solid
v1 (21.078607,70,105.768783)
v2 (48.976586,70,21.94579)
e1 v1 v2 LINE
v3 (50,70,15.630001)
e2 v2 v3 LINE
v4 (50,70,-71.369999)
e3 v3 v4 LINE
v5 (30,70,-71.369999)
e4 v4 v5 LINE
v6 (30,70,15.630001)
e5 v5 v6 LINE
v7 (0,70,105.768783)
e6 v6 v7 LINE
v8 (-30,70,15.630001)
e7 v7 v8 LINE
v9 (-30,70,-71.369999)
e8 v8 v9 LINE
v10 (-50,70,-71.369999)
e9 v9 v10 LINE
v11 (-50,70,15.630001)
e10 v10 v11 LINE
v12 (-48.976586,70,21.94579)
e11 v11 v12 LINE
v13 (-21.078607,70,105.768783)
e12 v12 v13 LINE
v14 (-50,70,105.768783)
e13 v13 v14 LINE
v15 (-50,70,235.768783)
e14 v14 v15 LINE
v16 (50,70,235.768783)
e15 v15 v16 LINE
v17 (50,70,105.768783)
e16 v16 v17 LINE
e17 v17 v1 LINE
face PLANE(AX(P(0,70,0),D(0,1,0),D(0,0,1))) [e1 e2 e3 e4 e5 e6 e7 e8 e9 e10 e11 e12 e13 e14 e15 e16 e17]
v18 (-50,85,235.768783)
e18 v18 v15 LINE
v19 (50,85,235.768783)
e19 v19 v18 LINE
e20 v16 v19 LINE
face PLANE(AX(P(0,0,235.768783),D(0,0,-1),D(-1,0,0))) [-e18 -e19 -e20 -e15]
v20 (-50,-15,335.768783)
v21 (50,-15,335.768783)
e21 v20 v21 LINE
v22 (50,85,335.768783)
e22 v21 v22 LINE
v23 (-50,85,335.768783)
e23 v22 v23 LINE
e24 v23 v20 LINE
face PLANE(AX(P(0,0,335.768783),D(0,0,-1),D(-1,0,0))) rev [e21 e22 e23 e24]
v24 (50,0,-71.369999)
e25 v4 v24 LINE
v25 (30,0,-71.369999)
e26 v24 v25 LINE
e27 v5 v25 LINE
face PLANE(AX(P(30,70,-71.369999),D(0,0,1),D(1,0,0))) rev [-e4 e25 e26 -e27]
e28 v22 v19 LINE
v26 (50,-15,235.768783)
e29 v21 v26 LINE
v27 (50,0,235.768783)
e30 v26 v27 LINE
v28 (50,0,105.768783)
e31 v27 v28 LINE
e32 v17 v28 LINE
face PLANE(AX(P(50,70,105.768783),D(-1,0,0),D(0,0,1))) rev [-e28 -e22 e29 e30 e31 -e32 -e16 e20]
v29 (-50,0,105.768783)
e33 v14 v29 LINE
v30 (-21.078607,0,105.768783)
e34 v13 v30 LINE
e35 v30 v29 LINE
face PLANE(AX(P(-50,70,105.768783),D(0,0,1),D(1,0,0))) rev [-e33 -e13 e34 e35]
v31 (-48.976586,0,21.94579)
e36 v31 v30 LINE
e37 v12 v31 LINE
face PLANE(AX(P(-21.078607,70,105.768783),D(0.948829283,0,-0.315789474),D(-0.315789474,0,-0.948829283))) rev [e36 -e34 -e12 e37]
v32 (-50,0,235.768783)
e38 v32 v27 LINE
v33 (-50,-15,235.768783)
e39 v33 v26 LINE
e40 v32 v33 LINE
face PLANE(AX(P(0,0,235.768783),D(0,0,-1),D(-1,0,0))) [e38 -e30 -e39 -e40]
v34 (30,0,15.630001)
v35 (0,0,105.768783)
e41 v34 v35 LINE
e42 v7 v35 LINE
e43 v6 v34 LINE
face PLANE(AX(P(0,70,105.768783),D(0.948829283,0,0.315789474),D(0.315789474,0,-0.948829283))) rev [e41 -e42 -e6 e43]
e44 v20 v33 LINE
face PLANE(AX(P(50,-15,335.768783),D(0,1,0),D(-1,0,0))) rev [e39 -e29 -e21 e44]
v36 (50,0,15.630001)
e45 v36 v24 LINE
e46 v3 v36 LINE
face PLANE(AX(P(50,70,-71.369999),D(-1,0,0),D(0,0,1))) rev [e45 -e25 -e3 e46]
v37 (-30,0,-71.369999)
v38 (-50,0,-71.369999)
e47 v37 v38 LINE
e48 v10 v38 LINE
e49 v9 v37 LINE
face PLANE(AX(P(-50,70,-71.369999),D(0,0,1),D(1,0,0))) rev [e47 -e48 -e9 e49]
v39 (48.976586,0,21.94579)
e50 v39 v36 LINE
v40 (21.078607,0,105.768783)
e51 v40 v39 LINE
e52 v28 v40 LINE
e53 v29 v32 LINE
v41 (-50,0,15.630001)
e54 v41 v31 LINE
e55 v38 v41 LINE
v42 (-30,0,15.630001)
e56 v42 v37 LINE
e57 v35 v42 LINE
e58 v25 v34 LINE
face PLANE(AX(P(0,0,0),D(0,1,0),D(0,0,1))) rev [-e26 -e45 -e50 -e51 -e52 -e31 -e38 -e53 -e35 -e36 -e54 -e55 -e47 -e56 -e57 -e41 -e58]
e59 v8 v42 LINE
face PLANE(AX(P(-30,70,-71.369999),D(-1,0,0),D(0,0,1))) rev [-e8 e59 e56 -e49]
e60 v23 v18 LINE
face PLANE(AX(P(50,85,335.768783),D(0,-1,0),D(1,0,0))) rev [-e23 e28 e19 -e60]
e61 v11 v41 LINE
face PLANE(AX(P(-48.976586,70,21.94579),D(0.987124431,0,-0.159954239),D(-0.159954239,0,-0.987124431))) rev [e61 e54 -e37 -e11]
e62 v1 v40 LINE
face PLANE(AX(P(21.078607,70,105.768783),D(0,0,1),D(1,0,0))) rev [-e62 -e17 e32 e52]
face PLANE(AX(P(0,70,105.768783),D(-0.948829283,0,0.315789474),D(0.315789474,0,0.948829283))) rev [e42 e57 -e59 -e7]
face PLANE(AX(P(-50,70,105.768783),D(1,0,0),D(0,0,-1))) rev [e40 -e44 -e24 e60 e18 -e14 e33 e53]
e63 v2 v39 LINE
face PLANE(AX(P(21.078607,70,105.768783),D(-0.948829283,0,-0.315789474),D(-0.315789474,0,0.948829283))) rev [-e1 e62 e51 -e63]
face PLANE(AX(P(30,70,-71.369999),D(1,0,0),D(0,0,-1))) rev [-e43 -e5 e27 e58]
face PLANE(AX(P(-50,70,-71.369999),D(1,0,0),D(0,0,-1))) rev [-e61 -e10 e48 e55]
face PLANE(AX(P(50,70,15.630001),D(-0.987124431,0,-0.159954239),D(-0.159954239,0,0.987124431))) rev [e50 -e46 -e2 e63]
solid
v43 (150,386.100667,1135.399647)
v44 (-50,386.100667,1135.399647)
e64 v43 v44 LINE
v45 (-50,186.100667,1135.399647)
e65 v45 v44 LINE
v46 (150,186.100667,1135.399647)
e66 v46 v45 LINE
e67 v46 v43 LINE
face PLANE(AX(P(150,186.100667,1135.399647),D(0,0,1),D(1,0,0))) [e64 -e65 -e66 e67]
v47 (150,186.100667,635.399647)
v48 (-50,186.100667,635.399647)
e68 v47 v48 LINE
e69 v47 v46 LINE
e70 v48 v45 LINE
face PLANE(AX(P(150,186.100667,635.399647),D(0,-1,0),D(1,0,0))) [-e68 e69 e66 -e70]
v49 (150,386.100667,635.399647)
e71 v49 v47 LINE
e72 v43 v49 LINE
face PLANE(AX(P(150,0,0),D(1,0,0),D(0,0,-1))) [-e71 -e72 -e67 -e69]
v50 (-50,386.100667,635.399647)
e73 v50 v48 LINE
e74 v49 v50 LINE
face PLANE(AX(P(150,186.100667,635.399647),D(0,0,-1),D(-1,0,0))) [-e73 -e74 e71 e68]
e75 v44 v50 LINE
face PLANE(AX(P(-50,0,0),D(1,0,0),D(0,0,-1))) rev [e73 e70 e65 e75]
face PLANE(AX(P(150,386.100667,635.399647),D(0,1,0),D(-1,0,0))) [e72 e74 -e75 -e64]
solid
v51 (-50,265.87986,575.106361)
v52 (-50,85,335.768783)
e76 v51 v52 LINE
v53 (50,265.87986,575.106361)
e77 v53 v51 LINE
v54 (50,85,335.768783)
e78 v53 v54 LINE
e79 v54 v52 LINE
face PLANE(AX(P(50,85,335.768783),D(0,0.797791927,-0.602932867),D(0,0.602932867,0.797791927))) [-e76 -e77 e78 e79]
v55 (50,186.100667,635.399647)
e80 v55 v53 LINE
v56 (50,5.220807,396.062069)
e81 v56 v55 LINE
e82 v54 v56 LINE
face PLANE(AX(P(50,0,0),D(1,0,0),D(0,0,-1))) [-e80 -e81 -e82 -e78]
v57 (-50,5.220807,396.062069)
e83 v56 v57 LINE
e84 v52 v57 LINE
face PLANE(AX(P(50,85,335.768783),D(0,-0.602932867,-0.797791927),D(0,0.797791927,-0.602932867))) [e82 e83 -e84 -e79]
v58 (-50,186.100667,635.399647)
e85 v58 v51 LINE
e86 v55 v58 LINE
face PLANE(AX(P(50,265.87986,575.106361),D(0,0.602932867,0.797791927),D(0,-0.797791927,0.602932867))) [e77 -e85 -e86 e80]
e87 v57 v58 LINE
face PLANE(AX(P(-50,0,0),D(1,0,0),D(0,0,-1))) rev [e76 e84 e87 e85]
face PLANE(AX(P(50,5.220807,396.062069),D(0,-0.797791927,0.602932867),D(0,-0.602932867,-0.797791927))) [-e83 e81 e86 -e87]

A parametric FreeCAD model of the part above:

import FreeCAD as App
import Part
import Sketcher
from FreeCAD import Vector
Q = App.Units.Quantity

doc = App.newDocument("Part")
body = doc.addObject("PartDesign::Body", "Body")

# Sketch on XZ plane
sketch1 = doc.addObject("Sketcher::SketchObject", "Sketch")
body.addObject(sketch1)
sketch1.AttachmentSupport = (doc.XZ_Plane, [""])
sketch1.MapMode = "FlatFace"
sketch1.addGeometry([
    Part.LineSegment(Vector(0, 106, 0), Vector(-30, 16, 0)),  # 0
    Part.LineSegment(Vector(-30, 16, 0), Vector(-30, -71, 0)),  # 1
    Part.LineSegment(Vector(-30, -71, 0), Vector(-50, -71, 0)),  # 2
    Part.LineSegment(Vector(-50, -71, 0), Vector(-50, 16, 0)),  # 3
    Part.LineSegment(Vector(-50, 16, 0), Vector(-49, 22, 0)),  # 4
    Part.LineSegment(Vector(-49, 22, 0), Vector(-21, 106, 0)),  # 5
    Part.LineSegment(Vector(-21, 106, 0), Vector(-50, 106, 0)),  # 6
    Part.LineSegment(Vector(-50, 106, 0), Vector(-50, 236, 0)),  # 7
    Part.LineSegment(Vector(-50, 236, 0), Vector(50, 236, 0)),  # 8
    Part.LineSegment(Vector(50, 236, 0), Vector(50, 106, 0)),  # 9
    Part.LineSegment(Vector(50, 106, 0), Vector(21, 106, 0)),  # 10
    Part.LineSegment(Vector(21, 106, 0), Vector(49, 22, 0)),  # 11
    Part.LineSegment(Vector(49, 22, 0), Vector(50, 16, 0)),  # 12
    Part.LineSegment(Vector(50, 16, 0), Vector(50, -71, 0)),  # 13
    Part.LineSegment(Vector(50, -71, 0), Vector(30, -71, 0)),  # 14
    Part.LineSegment(Vector(30, -71, 0), Vector(30, 16, 0)),  # 15
    Part.LineSegment(Vector(30, 16, 0), Vector(0, 106, 0)),  # 16
], False)
sketch1.addConstraint([
    Sketcher.Constraint("Coincident", 0, 2, 1, 1),
    Sketcher.Constraint("Coincident", 1, 2, 2, 1),
    Sketcher.Constraint("Coincident", 2, 2, 3, 1),
    Sketcher.Constraint("Coincident", 3, 2, 4, 1),
    Sketcher.Constraint("Coincident", 4, 2, 5, 1),
    Sketcher.Constraint("Coincident", 5, 2, 6, 1),
    Sketcher.Constraint("Coincident", 6, 2, 7, 1),
    Sketcher.Constraint("Coincident", 7, 2, 8, 1),
    Sketcher.Constraint("Coincident", 8, 2, 9, 1),
    Sketcher.Constraint("Coincident", 9, 2, 10, 1),
    Sketcher.Constraint("Coincident", 10, 2, 11, 1),
    Sketcher.Constraint("Coincident", 11, 2, 12, 1),
    Sketcher.Constraint("Coincident", 12, 2, 13, 1),
    Sketcher.Constraint("Coincident", 13, 2, 14, 1),
    Sketcher.Constraint("Coincident", 14, 2, 15, 1),
    Sketcher.Constraint("Coincident", 15, 2, 16, 1),
    Sketcher.Constraint("Coincident", 16, 2, 0, 1),
    Sketcher.Constraint("Vertical", 1),
    Sketcher.Constraint("Horizontal", 2),
    Sketcher.Constraint("Vertical", 3),
    Sketcher.Constraint("Horizontal", 6),
    Sketcher.Constraint("Vertical", 7),
    Sketcher.Constraint("Horizontal", 8),
    Sketcher.Constraint("Vertical", 9),
    Sketcher.Constraint("Horizontal", 10),
    Sketcher.Constraint("Vertical", 13),
    Sketcher.Constraint("Horizontal", 14),
    Sketcher.Constraint("Vertical", 15),
    Sketcher.Constraint("Symmetric", 6, 2, 9, 2, -2),
    Sketcher.Constraint("Symmetric", 4, 2, 11, 2, -2),
    Sketcher.Constraint("Symmetric", 3, 2, 12, 2, -2),
    Sketcher.Constraint("Symmetric", 1, 2, 14, 2, -2),
    Sketcher.Constraint("PointOnObject", 16, 2, -2),
    Sketcher.Constraint("Parallel", 0, 5),
    Sketcher.Constraint("Parallel", 11, 16),
    Sketcher.Constraint("Horizontal", 0, 2, 3, 2),
    Sketcher.Constraint("Horizontal", 12, 2, 15, 2),
    Sketcher.Constraint("Horizontal", 10, 2, 16, 2),
    Sketcher.Constraint("Vertical", 3, 2, 6, 2),
    Sketcher.Constraint("DistanceX", 2, 2, 2, 1, Q("20 mm")),
    Sketcher.Constraint("DistanceX", 8, 1, 8, 2, Q("100 mm")),
    Sketcher.Constraint("DistanceY", 1, 2, 1, 1, Q("87 mm")),
    Sketcher.Constraint("DistanceY", 7, 1, 7, 2, Q("130 mm")),
    Sketcher.Constraint("Distance", 0, Q("95 mm")),
    Sketcher.Constraint("DistanceY", -1, 1, 0, 2, Q("15.630001 mm")),
    Sketcher.Constraint("Distance", 4, Q("6.39817 mm")),
    Sketcher.Constraint("DistanceX", 6, 2, 6, 1, Q("28.921393 mm")),
])
pad1 = doc.addObject("PartDesign::Pad", "Pad")
body.addObject(pad1)
pad1.Profile = sketch1
pad1.Length = 70
pad1.Reversed = True

# Sketch on XY plane
sketch2 = doc.addObject("Sketcher::SketchObject", "Sketch001")
body.addObject(sketch2)
sketch2.AttachmentSupport = (doc.XY_Plane, [""])
sketch2.MapMode = "FlatFace"
sketch2.AttachmentOffset = App.Placement(Vector(0, 0, 235.768783), App.Rotation())
sketch2.addGeometry([
    Part.LineSegment(Vector(-50, 85, 0), Vector(-50, -15, 0)),
    Part.LineSegment(Vector(-50, -15, 0), Vector(50, -15, 0)),
    Part.LineSegment(Vector(50, -15, 0), Vector(50, 85, 0)),
    Part.LineSegment(Vector(50, 85, 0), Vector(-50, 85, 0)),
], False)
sketch2.addConstraint([
    Sketcher.Constraint("Coincident", 0, 2, 1, 1),
    Sketcher.Constraint("Coincident", 1, 2, 2, 1),
    Sketcher.Constraint("Coincident", 2, 2, 3, 1),
    Sketcher.Constraint("Coincident", 3, 2, 0, 1),
    Sketcher.Constraint("Vertical", 0),
    Sketcher.Constraint("Horizontal", 1),
    Sketcher.Constraint("Vertical", 2),
    Sketcher.Constraint("Horizontal", 3),
    Sketcher.Constraint("Equal", 3, 0),
    Sketcher.Constraint("DistanceX", 1, 1, 1, 2, Q("100 mm")),
    Sketcher.Constraint("DistanceX", 0, 2, -1, 1, Q("50 mm")),
    Sketcher.Constraint("DistanceY", 0, 2, -1, 1, Q("15 mm")),
])
pad2 = doc.addObject("PartDesign::Pad", "Pad001")
body.addObject(pad2)
pad2.Profile = sketch2
pad2.Length = 100
body2 = doc.addObject("PartDesign::Body", "Body001")

# Sketch on YZ plane
sketch3 = doc.addObject("Sketcher::SketchObject", "Sketch002")
body2.addObject(sketch3)
sketch3.AttachmentSupport = (doc.getObject("YZ_Plane001"), [""])
sketch3.MapMode = "FlatFace"
sketch3.AttachmentOffset = App.Placement(Vector(0, 0, -50), App.Rotation())
sketch3.addGeometry([
    Part.LineSegment(Vector(85, 336, 0), Vector(5, 396, 0)),
    Part.LineSegment(Vector(5, 396, 0), Vector(186, 635, 0)),
    Part.LineSegment(Vector(186, 635, 0), Vector(266, 575, 0)),
    Part.LineSegment(Vector(266, 575, 0), Vector(85, 336, 0)),
], False)
sketch3.addConstraint([
    Sketcher.Constraint("Coincident", 0, 2, 1, 1),
    Sketcher.Constraint("Coincident", 1, 2, 2, 1),
    Sketcher.Constraint("Coincident", 2, 2, 3, 1),
    Sketcher.Constraint("Coincident", 3, 2, 0, 1),
    Sketcher.Constraint("Perpendicular", 0, 1),
    Sketcher.Constraint("Perpendicular", 1, 2),
    Sketcher.Constraint("Perpendicular", 2, 3),
    Sketcher.Constraint("Distance", 0, Q("100 mm")),
    Sketcher.Constraint("Distance", 1, Q("300 mm")),
    Sketcher.Constraint("DistanceX", -1, 1, 3, 2, Q("85 mm")),
    Sketcher.Constraint("DistanceY", -1, 1, 0, 2, Q("396.062069 mm")),
    Sketcher.Constraint("DistanceX", -1, 1, 2, 2, Q("265.87986 mm")),
])
pad3 = doc.addObject("PartDesign::Pad", "Pad002")
body2.addObject(pad3)
pad3.Profile = sketch3
pad3.Length = 100
body3 = doc.addObject("PartDesign::Body", "Body002")

# Sketch on YZ plane
sketch4 = doc.addObject("Sketcher::SketchObject", "Sketch003")
body3.addObject(sketch4)
sketch4.AttachmentSupport = (doc.getObject("YZ_Plane002"), [""])
sketch4.MapMode = "FlatFace"
sketch4.AttachmentOffset = App.Placement(Vector(0, 0, -50), App.Rotation())
sketch4.addGeometry([
    Part.LineSegment(Vector(386, 635, 0), Vector(186, 635, 0)),
    Part.LineSegment(Vector(186, 635, 0), Vector(186, 1135, 0)),
    Part.LineSegment(Vector(186, 1135, 0), Vector(386, 1135, 0)),
    Part.LineSegment(Vector(386, 1135, 0), Vector(386, 635, 0)),
], False)
sketch4.addConstraint([
    Sketcher.Constraint("Coincident", 0, 2, 1, 1),
    Sketcher.Constraint("Coincident", 1, 2, 2, 1),
    Sketcher.Constraint("Coincident", 2, 2, 3, 1),
    Sketcher.Constraint("Coincident", 3, 2, 0, 1),
    Sketcher.Constraint("Horizontal", 0),
    Sketcher.Constraint("Vertical", 1),
    Sketcher.Constraint("Horizontal", 2),
    Sketcher.Constraint("Vertical", 3),
    Sketcher.Constraint("DistanceX", 0, 2, 0, 1, Q("200 mm")),
    Sketcher.Constraint("DistanceY", 1, 1, 1, 2, Q("500 mm")),
    Sketcher.Constraint("DistanceX", -1, 1, 0, 2, Q("186.100667 mm")),
    Sketcher.Constraint("DistanceY", -1, 1, 0, 2, Q("635.399647 mm")),
])
pad4 = doc.addObject("PartDesign::Pad", "Pad003")
body3.addObject(pad4)
pad4.Profile = sketch4
pad4.Length = 200

doc.recompute()
